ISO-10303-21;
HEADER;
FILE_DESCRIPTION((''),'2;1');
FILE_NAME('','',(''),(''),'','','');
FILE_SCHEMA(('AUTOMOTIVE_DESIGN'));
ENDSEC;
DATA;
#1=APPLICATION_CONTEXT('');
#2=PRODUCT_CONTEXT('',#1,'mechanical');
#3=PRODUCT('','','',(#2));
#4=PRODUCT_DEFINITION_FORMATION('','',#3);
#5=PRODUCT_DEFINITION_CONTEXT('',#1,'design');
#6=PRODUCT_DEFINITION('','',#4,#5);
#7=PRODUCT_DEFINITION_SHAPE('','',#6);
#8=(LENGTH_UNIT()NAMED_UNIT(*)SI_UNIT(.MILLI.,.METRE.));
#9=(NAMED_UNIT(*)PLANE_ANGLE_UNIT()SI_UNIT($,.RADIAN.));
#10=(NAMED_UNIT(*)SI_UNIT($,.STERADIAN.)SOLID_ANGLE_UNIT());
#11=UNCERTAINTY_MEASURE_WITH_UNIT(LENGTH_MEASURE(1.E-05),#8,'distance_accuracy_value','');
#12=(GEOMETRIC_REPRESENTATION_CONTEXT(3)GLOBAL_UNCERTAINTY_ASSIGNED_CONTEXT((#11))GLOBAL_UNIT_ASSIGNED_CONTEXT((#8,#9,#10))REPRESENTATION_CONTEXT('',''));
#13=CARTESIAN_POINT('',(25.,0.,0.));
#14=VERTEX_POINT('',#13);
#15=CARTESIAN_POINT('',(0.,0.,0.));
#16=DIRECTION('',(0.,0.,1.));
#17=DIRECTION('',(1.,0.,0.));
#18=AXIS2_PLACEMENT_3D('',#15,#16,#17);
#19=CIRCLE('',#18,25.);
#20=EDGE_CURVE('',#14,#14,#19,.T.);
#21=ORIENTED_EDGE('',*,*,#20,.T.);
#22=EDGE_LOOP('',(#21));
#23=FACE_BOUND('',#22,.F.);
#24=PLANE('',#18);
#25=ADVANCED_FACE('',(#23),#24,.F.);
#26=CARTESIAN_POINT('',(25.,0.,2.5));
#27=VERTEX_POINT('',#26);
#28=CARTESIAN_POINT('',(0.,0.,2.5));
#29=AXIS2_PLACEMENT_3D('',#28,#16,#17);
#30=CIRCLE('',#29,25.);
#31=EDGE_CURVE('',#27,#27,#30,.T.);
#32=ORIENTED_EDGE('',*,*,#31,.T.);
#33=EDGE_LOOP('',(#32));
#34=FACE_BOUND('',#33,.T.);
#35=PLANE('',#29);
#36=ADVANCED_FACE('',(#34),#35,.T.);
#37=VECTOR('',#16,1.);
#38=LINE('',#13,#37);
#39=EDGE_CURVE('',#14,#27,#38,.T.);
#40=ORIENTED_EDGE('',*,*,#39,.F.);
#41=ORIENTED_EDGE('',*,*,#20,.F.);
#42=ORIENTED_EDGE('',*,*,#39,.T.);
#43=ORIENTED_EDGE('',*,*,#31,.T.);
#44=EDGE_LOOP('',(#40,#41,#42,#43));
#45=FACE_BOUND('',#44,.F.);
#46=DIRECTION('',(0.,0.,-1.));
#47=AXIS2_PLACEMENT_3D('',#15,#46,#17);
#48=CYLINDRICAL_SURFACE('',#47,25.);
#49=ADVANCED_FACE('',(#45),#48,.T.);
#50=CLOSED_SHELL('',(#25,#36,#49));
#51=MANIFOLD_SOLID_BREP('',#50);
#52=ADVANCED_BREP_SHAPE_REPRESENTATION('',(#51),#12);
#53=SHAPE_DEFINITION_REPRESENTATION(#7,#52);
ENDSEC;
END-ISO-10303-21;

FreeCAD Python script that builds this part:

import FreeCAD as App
import Part
import Sketcher
Q = App.Units.Quantity

doc = App.newDocument("Part")
body = doc.addObject("PartDesign::Body", "Body")

# Sketch on XY plane
sketch1 = body.newObject("Sketcher::SketchObject", "Sketch")
sketch1.AttachmentSupport = (doc.getObject("XY_Plane"), [""])
sketch1.MapMode = "FlatFace"
sketch1.addGeometry(Part.Circle(App.Vector(0, 0, 0), App.Vector(0, 0, 1), 25), False)
sketch1.addConstraint(Sketcher.Constraint("Coincident", 0, 3, -1, 1))
sketch1.addConstraint(Sketcher.Constraint("Diameter", 0, Q("50 mm")))
pad1 = body.newObject("PartDesign::Pad", "Pad")
pad1.Profile = sketch1
pad1.Length = 2.5

doc.recompute()
